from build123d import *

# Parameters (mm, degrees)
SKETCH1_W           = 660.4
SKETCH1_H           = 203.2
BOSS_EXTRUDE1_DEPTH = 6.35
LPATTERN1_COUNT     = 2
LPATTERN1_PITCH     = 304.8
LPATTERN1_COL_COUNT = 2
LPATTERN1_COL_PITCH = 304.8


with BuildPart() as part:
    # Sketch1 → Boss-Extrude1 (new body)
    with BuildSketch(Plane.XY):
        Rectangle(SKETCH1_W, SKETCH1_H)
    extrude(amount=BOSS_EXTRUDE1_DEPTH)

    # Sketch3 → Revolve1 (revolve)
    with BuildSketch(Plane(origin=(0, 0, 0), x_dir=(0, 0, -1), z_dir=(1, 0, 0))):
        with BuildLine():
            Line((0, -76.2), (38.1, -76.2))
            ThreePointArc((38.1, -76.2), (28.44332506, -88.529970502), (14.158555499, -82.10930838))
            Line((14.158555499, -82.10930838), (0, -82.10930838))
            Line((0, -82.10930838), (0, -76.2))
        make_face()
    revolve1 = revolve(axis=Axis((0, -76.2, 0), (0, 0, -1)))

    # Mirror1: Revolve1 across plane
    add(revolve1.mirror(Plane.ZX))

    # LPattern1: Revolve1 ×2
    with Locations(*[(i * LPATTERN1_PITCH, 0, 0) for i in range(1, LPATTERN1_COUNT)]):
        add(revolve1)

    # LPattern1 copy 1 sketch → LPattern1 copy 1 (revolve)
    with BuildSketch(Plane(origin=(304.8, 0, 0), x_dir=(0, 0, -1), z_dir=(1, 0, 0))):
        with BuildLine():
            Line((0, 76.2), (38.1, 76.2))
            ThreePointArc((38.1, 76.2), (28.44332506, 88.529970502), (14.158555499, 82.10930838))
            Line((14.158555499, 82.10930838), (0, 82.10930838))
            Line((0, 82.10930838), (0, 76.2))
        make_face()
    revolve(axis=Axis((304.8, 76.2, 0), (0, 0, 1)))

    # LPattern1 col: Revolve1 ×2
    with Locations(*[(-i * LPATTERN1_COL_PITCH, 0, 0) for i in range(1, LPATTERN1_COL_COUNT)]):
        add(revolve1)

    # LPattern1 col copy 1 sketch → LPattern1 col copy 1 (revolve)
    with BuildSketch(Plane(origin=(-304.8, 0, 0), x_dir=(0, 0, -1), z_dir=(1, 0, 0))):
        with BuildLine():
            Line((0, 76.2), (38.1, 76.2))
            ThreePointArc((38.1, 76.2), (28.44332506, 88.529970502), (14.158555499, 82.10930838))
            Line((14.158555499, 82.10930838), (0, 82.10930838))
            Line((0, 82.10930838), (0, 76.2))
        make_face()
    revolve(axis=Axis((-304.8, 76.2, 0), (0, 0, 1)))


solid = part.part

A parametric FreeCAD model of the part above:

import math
import FreeCAD as App
import Part
import Sketcher
Q = App.Units.Quantity

doc = App.newDocument("Part")
body = doc.addObject("PartDesign::Body", "Body")

sketch1 = body.newObject("Sketcher::SketchObject", "Sketch")
sketch1.AttachmentSupport = (doc.getObject("XY_Plane"), [""])
sketch1.MapMode = "FlatFace"
sketch1.addGeometry([
    Part.LineSegment(App.Vector(-330, 102, 0), App.Vector(-330, -102, 0)),
    Part.LineSegment(App.Vector(-330, -102, 0), App.Vector(330, -102, 0)),
    Part.LineSegment(App.Vector(330, -102, 0), App.Vector(330, 102, 0)),
    Part.LineSegment(App.Vector(330, 102, 0), App.Vector(-330, 102, 0)),
], False)
sketch1.addConstraint([
    Sketcher.Constraint("Coincident", 0, 2, 1, 1),
    Sketcher.Constraint("Coincident", 1, 2, 2, 1),
    Sketcher.Constraint("Coincident", 2, 2, 3, 1),
    Sketcher.Constraint("Coincident", 3, 2, 0, 1),
    Sketcher.Constraint("Vertical", 0),
    Sketcher.Constraint("Horizontal", 1),
    Sketcher.Constraint("Vertical", 2),
    Sketcher.Constraint("Horizontal", 3),
    Sketcher.Constraint("Symmetric", 0, 2, 2, 2, -1, 1),
    Sketcher.Constraint("DistanceX", 1, 1, 1, 2, Q("26 in")),
    Sketcher.Constraint("DistanceY", 0, 2, 0, 1, Q("8 in")),
])
pad1 = body.newObject("PartDesign::Pad", "Pad")
pad1.Profile = sketch1
pad1.Length = Q("0.25 in")

sketch2 = body.newObject("Sketcher::SketchObject", "Sketch001")
sketch2.AttachmentSupport = (doc.getObject("YZ_Plane"), [""])
sketch2.MapMode = "FlatFace"
sketch2.addGeometry([
    Part.LineSegment(App.Vector(-76, -38, 0), App.Vector(-76, 0, 0)),
    Part.LineSegment(App.Vector(-76, 0, 0), App.Vector(-82, 0, 0)),
    Part.LineSegment(App.Vector(-82, 0, 0), App.Vector(-82, -14, 0)),
    Part.ArcOfCircle(Part.Circle(App.Vector(-76, -25, 0), App.Vector(0, 0, 1), 13), math.radians(118), math.radians(270)),
], False)
sketch2.addGeometry(Part.LineSegment(App.Vector(-76, 0, 0), App.Vector(-76, -38, 0)), True)
sketch2.addConstraint([
    Sketcher.Constraint("Coincident", 0, 2, 1, 1),
    Sketcher.Constraint("Coincident", 1, 2, 2, 1),
    Sketcher.Constraint("Coincident", 2, 2, 3, 1),
    Sketcher.Constraint("Coincident", 3, 2, 0, 1),
    Sketcher.Constraint("Vertical", 0),
    Sketcher.Constraint("Horizontal", 1),
    Sketcher.Constraint("Vertical", 2),
    Sketcher.Constraint("Vertical", 4),
    Sketcher.Constraint("Coincident", 4, 1, 0, 2),
    Sketcher.Constraint("PointOnObject", 0, 2, -1),
    Sketcher.Constraint("Vertical", 3, 3, 0, 2),
    Sketcher.Constraint("Equal", 0, 4),
    Sketcher.Constraint("Radius", 3, Q("0.5 in")),
    Sketcher.Constraint("DistanceY", 0, 1, 0, 2, Q("1.5 in")),
    Sketcher.Constraint("DistanceX", 3, 3, -1, 1, Q("3 in")),
    Sketcher.Constraint("DistanceX", 1, 2, 1, 1, 5.909308),
])
revolution = body.newObject("PartDesign::Revolution", "Revolution")
revolution.Profile = sketch2
revolution.ReferenceAxis = (sketch2, ["Axis0"])
revolution.Angle = 360
doc.recompute()

mirrored = body.newObject("PartDesign::Mirrored", "Mirrored")
mirrored.Originals = [revolution]
mirrored.MirrorPlane = (doc.getObject("XZ_Plane"), [""])
body.Tip = mirrored
doc.recompute()

linearpattern = body.newObject("PartDesign::LinearPattern", "LinearPattern")
linearpattern.Originals = [revolution]
linearpattern.Direction = (doc.getObject("X_Axis"), [""])
linearpattern.Mode = "offset"
linearpattern.Offset = Q("12 in")
linearpattern.Occurrences = 2
body.Tip = linearpattern

sketch3 = body.newObject("Sketcher::SketchObject", "Sketch002")
sketch3.AttachmentSupport = (doc.getObject("YZ_Plane"), [""])
sketch3.MapMode = "FlatFace"
sketch3.AttachmentOffset = App.Placement(App.Vector(0, 0, 12 * 25.4), App.Rotation())
sketch3.addGeometry([
    Part.LineSegment(App.Vector(76, 0, 0), App.Vector(76, -38, 0)),
    Part.ArcOfCircle(Part.Circle(App.Vector(76, -25, 0), App.Vector(0, 0, 1), 13), math.radians(-90), math.radians(62)),
    Part.LineSegment(App.Vector(82, -14, 0), App.Vector(82, 0, 0)),
    Part.LineSegment(App.Vector(82, 0, 0), App.Vector(76, 0, 0)),
], False)
sketch3.addGeometry(Part.LineSegment(App.Vector(76, -38, 0), App.Vector(76, 0, 0)), True)
sketch3.addConstraint([
    Sketcher.Constraint("Coincident", 0, 2, 1, 1),
    Sketcher.Constraint("Coincident", 1, 2, 2, 1),
    Sketcher.Constraint("Coincident", 2, 2, 3, 1),
    Sketcher.Constraint("Coincident", 3, 2, 0, 1),
    Sketcher.Constraint("Vertical", 0),
    Sketcher.Constraint("Vertical", 2),
    Sketcher.Constraint("Horizontal", 3),
    Sketcher.Constraint("Vertical", 4),
    Sketcher.Constraint("Coincident", 4, 1, 0, 2),
    Sketcher.Constraint("PointOnObject", 2, 2, -1),
    Sketcher.Constraint("PointOnObject", 4, 2, -1),
    Sketcher.Constraint("Vertical", 1, 3, 0, 2),
    Sketcher.Constraint("Radius", 1, Q("0.5 in")),
    Sketcher.Constraint("DistanceY", 0, 2, 0, 1, Q("1.5 in")),
    Sketcher.Constraint("DistanceX", -1, 1, 1, 3, Q("3 in")),
    Sketcher.Constraint("DistanceX", 3, 2, 3, 1, 5.909308),
])
revolution2 = body.newObject("PartDesign::Revolution", "Revolution001")
revolution2.Profile = sketch3
revolution2.ReferenceAxis = (sketch3, ["Axis0"])
revolution2.Angle = 360
doc.recompute()

linearpattern2 = body.newObject("PartDesign::LinearPattern", "LinearPattern001")
linearpattern2.Originals = [revolution]
linearpattern2.Direction = (doc.getObject("X_Axis"), [""])
linearpattern2.Mode = "offset"
linearpattern2.Offset = Q("12 in")
linearpattern2.Occurrences = 2
linearpattern2.Reversed = True
body.Tip = linearpattern2

sketch4 = body.newObject("Sketcher::SketchObject", "Sketch003")
sketch4.AttachmentSupport = (doc.getObject("YZ_Plane"), [""])
sketch4.MapMode = "FlatFace"
sketch4.AttachmentOffset = App.Placement(App.Vector(0, 0, -12 * 25.4), App.Rotation())
sketch4.addGeometry([
    Part.LineSegment(App.Vector(76, 0, 0), App.Vector(76, -38, 0)),
    Part.ArcOfCircle(Part.Circle(App.Vector(76, -25, 0), App.Vector(0, 0, 1), 13), math.radians(-90), math.radians(62)),
    Part.LineSegment(App.Vector(82, -14, 0), App.Vector(82, 0, 0)),
    Part.LineSegment(App.Vector(82, 0, 0), App.Vector(76, 0, 0)),
], False)
sketch4.addGeometry(Part.LineSegment(App.Vector(76, -38, 0), App.Vector(76, 0, 0)), True)
sketch4.addConstraint([
    Sketcher.Constraint("Coincident", 0, 2, 1, 1),
    Sketcher.Constraint("Coincident", 1, 2, 2, 1),
    Sketcher.Constraint("Coincident", 2, 2, 3, 1),
    Sketcher.Constraint("Coincident", 3, 2, 0, 1),
    Sketcher.Constraint("Vertical", 0),
    Sketcher.Constraint("Vertical", 2),
    Sketcher.Constraint("Horizontal", 3),
    Sketcher.Constraint("Vertical", 4),
    Sketcher.Constraint("Coincident", 4, 1, 0, 2),
    Sketcher.Constraint("PointOnObject", 2, 2, -1),
    Sketcher.Constraint("PointOnObject", 4, 2, -1),
    Sketcher.Constraint("Vertical", 1, 3, 0, 2),
    Sketcher.Constraint("Radius", 1, Q("0.5 in")),
    Sketcher.Constraint("DistanceY", 0, 2, 0, 1, Q("1.5 in")),
    Sketcher.Constraint("DistanceX", -1, 1, 1, 3, Q("3 in")),
    Sketcher.Constraint("DistanceX", 3, 2, 3, 1, 5.909308),
])
revolution3 = body.newObject("PartDesign::Revolution", "Revolution002")
revolution3.Profile = sketch4
revolution3.ReferenceAxis = (sketch4, ["Axis0"])
revolution3.Angle = 360

doc.recompute()
